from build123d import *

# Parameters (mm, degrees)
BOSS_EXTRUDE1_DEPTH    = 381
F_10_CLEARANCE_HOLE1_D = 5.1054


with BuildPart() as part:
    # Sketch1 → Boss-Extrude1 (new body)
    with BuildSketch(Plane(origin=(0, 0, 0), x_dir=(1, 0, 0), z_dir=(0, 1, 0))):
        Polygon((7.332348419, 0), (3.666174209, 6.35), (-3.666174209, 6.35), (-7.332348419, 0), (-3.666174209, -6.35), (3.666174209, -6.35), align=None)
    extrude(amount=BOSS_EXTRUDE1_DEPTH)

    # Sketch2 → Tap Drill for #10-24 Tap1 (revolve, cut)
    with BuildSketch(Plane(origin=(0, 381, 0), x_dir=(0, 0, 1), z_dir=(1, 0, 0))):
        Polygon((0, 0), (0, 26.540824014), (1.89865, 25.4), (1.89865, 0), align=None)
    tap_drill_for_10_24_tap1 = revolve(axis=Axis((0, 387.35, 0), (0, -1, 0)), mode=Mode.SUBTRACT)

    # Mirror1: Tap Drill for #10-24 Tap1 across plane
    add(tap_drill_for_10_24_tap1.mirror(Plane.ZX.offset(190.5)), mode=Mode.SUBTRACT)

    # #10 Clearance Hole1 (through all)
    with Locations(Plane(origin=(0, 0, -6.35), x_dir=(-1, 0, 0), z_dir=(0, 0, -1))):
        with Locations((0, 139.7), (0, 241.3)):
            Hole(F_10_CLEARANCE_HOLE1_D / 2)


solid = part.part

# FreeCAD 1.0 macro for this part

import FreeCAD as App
import Part
import Sketcher

V = App.Vector
Q = App.Units.Quantity

doc = App.newDocument("Part")
body = doc.addObject("PartDesign::Body", "Body")

sketch1 = body.newObject("Sketcher::SketchObject", "Sketch")
sketch1.AttachmentSupport = (doc.getObject("XZ_Plane"), [""])
sketch1.MapMode = "FlatFace"
sketch1.addGeometry(Part.LineSegment(V(7, 0, 0), V(4, -6, 0)), False)
sketch1.addGeometry(Part.LineSegment(V(4, -6, 0), V(-4, -6, 0)), False)
sketch1.addGeometry(Part.LineSegment(V(-4, -6, 0), V(-7, 0, 0)), False)
sketch1.addGeometry(Part.LineSegment(V(-7, 0, 0), V(-4, 6, 0)), False)
sketch1.addGeometry(Part.LineSegment(V(-4, 6, 0), V(4, 6, 0)), False)
sketch1.addGeometry(Part.LineSegment(V(4, 6, 0), V(7, 0, 0)), False)
sketch1.addConstraint(Sketcher.Constraint("Coincident", 0, 2, 1, 1))
sketch1.addConstraint(Sketcher.Constraint("Coincident", 1, 2, 2, 1))
sketch1.addConstraint(Sketcher.Constraint("Coincident", 2, 2, 3, 1))
sketch1.addConstraint(Sketcher.Constraint("Coincident", 3, 2, 4, 1))
sketch1.addConstraint(Sketcher.Constraint("Coincident", 4, 2, 5, 1))
sketch1.addConstraint(Sketcher.Constraint("Coincident", 5, 2, 0, 1))
sketch1.addConstraint(Sketcher.Constraint("Horizontal", 1))
sketch1.addConstraint(Sketcher.Constraint("Horizontal", 4))
sketch1.addConstraint(Sketcher.Constraint("Symmetric", 0, 2, 3, 2, -1, 1))
sketch1.addConstraint(Sketcher.Constraint("Symmetric", 2, 2, 5, 2, -1, 1))
sketch1.addConstraint(Sketcher.Constraint("PointOnObject", 2, 2, -1))
sketch1.addConstraint(Sketcher.Constraint("Parallel", 2, 5))
sketch1.addConstraint(Sketcher.Constraint("Vertical", 1, 2, 3, 2))
sketch1.addConstraint(Sketcher.Constraint("Angle", 0, Q("-120 deg")))
sketch1.addConstraint(Sketcher.Constraint("DistanceY", 1, 2, 3, 2, Q("0.5 in")))
sketch1.addConstraint(Sketcher.Constraint("DistanceX", 1, 2, 1, 1, 7.332348))
pad1 = body.newObject("PartDesign::Pad", "Pad")
pad1.Profile = sketch1
pad1.Length = Q("15 in")
pad1.Reversed = True

sketch2 = body.newObject("Sketcher::SketchObject", "Sketch001")
sketch2.AttachmentSupport = (doc.getObject("YZ_Plane"), [""])
sketch2.MapMode = "FlatFace"
sketch2.addGeometry(Part.LineSegment(V(354.5, 0, 0), V(381, 0, 0)), False)
sketch2.addGeometry(Part.LineSegment(V(381, 0, 0), V(381, 1.9, 0)), False)
sketch2.addGeometry(Part.LineSegment(V(381, 1.9, 0), V(355.6, 1.9, 0)), False)
sketch2.addGeometry(Part.LineSegment(V(355.6, 1.9, 0), V(354.5, 0, 0)), False)
sketch2.addConstraint(Sketcher.Constraint("Coincident", 0, 2, 1, 1))
sketch2.addConstraint(Sketcher.Constraint("Coincident", 1, 2, 2, 1))
sketch2.addConstraint(Sketcher.Constraint("Coincident", 2, 2, 3, 1))
sketch2.addConstraint(Sketcher.Constraint("Coincident", 3, 2, 0, 1))
sketch2.addConstraint(Sketcher.Constraint("Horizontal", 0))
sketch2.addConstraint(Sketcher.Constraint("Vertical", 1))
sketch2.addConstraint(Sketcher.Constraint("Horizontal", 2))
sketch2.addConstraint(Sketcher.Constraint("PointOnObject", 0, 2, -1))
sketch2.addConstraint(Sketcher.Constraint("DistanceX", 2, 2, 2, 1, Q("1 in")))
sketch2.addConstraint(Sketcher.Constraint("DistanceX", -1, 1, 0, 2, Q("15 in")))
sketch2.addConstraint(Sketcher.Constraint("Angle", 3, Q("-121 deg")))
sketch2.addConstraint(Sketcher.Constraint("DistanceY", 1, 1, 1, 2, 1.89865))
groove = body.newObject("PartDesign::Groove", "Groove")
groove.Profile = sketch2
groove.ReferenceAxis = (sketch2, ["H_Axis"])
groove.Angle = 360
doc.recompute()

datumplane = body.newObject("PartDesign::Plane", "DatumPlane")
datumplane.AttachmentSupport = (doc.getObject("XZ_Plane"), [""])
datumplane.MapMode = "FlatFace"
datumplane.AttachmentOffset = App.Placement(V(0, 0, -7.5 * 25.4), App.Rotation())
mirrored = body.newObject("PartDesign::Mirrored", "Mirrored")
mirrored.Originals = [groove]
mirrored.MirrorPlane = (datumplane, [""])
body.Tip = mirrored

sketch3 = body.newObject("Sketcher::SketchObject", "Sketch002")
sketch3.AttachmentSupport = (doc.getObject("XY_Plane"), [""])
sketch3.MapMode = "FlatFace"
sketch3.AttachmentOffset = App.Placement(V(0, 0, -0.25 * 25.4), App.Rotation())
sketch3.addGeometry(Part.Circle(V(0, 139.7, 0), V(0, 0, 1), 2.6), False)
sketch3.addGeometry(Part.Circle(V(0, 241.3, 0), V(0, 0, 1), 2.6), False)
sketch3.addConstraint(Sketcher.Constraint("Equal", 0, 1))
sketch3.addConstraint(Sketcher.Constraint("PointOnObject", 0, 3, -2))
sketch3.addConstraint(Sketcher.Constraint("PointOnObject", 1, 3, -2))
sketch3.addConstraint(Sketcher.Constraint("Diameter", 0, Q("0.201 in")))
sketch3.addConstraint(Sketcher.Constraint("DistanceY", 0, 3, 1, 3, Q("4 in")))
sketch3.addConstraint(Sketcher.Constraint("DistanceY", -1, 1, 0, 3, Q("5.5 in")))
doc.recompute()
hole = body.newObject("PartDesign::Hole", "Hole")
hole.Profile = sketch3
hole.ThreadType = "None"
hole.Diameter = Q("0.201 in")
hole.DepthType = "ThroughAll"
hole.Reversed = True

doc.recompute()
